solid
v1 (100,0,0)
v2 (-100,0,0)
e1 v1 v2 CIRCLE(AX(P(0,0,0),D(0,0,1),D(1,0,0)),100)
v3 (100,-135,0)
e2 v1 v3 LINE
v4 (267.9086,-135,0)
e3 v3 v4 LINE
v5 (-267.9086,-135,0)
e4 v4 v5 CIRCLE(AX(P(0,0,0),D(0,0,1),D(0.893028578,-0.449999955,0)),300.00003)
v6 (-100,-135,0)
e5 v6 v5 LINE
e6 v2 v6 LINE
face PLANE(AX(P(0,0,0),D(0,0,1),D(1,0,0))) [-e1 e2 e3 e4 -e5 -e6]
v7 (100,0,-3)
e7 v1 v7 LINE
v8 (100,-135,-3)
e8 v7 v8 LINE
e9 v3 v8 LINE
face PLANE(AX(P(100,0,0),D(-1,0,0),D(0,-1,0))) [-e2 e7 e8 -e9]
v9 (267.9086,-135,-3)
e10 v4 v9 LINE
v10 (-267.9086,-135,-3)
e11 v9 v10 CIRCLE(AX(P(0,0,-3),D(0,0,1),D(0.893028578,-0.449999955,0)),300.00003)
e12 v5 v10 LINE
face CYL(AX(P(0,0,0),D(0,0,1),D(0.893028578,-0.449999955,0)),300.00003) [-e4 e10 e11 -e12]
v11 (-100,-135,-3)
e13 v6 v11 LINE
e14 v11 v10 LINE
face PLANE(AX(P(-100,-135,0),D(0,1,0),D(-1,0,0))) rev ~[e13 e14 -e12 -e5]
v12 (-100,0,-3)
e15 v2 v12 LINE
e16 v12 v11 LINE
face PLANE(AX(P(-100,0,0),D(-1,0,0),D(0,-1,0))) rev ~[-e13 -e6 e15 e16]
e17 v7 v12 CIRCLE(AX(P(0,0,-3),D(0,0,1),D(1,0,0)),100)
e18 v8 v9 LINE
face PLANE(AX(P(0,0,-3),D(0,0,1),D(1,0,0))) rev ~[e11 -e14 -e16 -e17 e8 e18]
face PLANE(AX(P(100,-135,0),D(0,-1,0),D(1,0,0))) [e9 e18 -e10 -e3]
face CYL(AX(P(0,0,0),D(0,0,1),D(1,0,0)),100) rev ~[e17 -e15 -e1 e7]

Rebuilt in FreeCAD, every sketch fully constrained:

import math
import FreeCAD as App
import Part
import Sketcher

V = App.Vector

doc = App.newDocument("Part")
body = doc.addObject("PartDesign::Body", "Body")

# Sketch on XY plane
sketch1 = body.newObject("Sketcher::SketchObject", "Sketch")
sketch1.AttachmentSupport = (doc.getObject("XY_Plane"), [""])
sketch1.MapMode = "FlatFace"
sketch1.addGeometry(Part.ArcOfCircle(Part.Circle(V(0, 0, 0), V(0, 0, 1), 100), math.radians(0), math.radians(180)), False)
sketch1.addGeometry(Part.LineSegment(V(100, 0, 0), V(100, -135, 0)), False)
sketch1.addGeometry(Part.LineSegment(V(100, -135, 0), V(268, -135, 0)), False)
sketch1.addGeometry(Part.ArcOfCircle(Part.Circle(V(0, 0, 0), V(0, 0, 1), 300), math.radians(-27), math.radians(207)), False)
sketch1.addGeometry(Part.LineSegment(V(-268, -135, 0), V(-100, -135, 0)), False)
sketch1.addGeometry(Part.LineSegment(V(-100, -135, 0), V(-100, 0, 0)), False)
sketch1.addConstraint(Sketcher.Constraint("Tangent", 0, 1, 1, 1))
sketch1.addConstraint(Sketcher.Constraint("Coincident", 1, 2, 2, 1))
sketch1.addConstraint(Sketcher.Constraint("Coincident", 2, 2, 3, 1))
sketch1.addConstraint(Sketcher.Constraint("Coincident", 3, 2, 4, 1))
sketch1.addConstraint(Sketcher.Constraint("Coincident", 4, 2, 5, 1))
sketch1.addConstraint(Sketcher.Constraint("Tangent", 5, 2, 0, 2))
sketch1.addConstraint(Sketcher.Constraint("Vertical", 1))
sketch1.addConstraint(Sketcher.Constraint("Horizontal", 2))
sketch1.addConstraint(Sketcher.Constraint("Horizontal", 4))
sketch1.addConstraint(Sketcher.Constraint("Vertical", 5))
sketch1.addConstraint(Sketcher.Constraint("Coincident", 0, 3, -1, 1))
sketch1.addConstraint(Sketcher.Constraint("Coincident", 3, 3, -1, 1))
sketch1.addConstraint(Sketcher.Constraint("Horizontal", 2, 2, 3, 2))
sketch1.addConstraint(Sketcher.Constraint("Radius", 0, 100.0))
sketch1.addConstraint(Sketcher.Constraint("Radius", 3, 300.0))
sketch1.addConstraint(Sketcher.Constraint("DistanceY", 1, 2, 1, 1, 135.0))
pad1 = body.newObject("PartDesign::Pad", "Pad")
pad1.Profile = sketch1
pad1.Length = 3
pad1.Reversed = True

doc.recompute()
